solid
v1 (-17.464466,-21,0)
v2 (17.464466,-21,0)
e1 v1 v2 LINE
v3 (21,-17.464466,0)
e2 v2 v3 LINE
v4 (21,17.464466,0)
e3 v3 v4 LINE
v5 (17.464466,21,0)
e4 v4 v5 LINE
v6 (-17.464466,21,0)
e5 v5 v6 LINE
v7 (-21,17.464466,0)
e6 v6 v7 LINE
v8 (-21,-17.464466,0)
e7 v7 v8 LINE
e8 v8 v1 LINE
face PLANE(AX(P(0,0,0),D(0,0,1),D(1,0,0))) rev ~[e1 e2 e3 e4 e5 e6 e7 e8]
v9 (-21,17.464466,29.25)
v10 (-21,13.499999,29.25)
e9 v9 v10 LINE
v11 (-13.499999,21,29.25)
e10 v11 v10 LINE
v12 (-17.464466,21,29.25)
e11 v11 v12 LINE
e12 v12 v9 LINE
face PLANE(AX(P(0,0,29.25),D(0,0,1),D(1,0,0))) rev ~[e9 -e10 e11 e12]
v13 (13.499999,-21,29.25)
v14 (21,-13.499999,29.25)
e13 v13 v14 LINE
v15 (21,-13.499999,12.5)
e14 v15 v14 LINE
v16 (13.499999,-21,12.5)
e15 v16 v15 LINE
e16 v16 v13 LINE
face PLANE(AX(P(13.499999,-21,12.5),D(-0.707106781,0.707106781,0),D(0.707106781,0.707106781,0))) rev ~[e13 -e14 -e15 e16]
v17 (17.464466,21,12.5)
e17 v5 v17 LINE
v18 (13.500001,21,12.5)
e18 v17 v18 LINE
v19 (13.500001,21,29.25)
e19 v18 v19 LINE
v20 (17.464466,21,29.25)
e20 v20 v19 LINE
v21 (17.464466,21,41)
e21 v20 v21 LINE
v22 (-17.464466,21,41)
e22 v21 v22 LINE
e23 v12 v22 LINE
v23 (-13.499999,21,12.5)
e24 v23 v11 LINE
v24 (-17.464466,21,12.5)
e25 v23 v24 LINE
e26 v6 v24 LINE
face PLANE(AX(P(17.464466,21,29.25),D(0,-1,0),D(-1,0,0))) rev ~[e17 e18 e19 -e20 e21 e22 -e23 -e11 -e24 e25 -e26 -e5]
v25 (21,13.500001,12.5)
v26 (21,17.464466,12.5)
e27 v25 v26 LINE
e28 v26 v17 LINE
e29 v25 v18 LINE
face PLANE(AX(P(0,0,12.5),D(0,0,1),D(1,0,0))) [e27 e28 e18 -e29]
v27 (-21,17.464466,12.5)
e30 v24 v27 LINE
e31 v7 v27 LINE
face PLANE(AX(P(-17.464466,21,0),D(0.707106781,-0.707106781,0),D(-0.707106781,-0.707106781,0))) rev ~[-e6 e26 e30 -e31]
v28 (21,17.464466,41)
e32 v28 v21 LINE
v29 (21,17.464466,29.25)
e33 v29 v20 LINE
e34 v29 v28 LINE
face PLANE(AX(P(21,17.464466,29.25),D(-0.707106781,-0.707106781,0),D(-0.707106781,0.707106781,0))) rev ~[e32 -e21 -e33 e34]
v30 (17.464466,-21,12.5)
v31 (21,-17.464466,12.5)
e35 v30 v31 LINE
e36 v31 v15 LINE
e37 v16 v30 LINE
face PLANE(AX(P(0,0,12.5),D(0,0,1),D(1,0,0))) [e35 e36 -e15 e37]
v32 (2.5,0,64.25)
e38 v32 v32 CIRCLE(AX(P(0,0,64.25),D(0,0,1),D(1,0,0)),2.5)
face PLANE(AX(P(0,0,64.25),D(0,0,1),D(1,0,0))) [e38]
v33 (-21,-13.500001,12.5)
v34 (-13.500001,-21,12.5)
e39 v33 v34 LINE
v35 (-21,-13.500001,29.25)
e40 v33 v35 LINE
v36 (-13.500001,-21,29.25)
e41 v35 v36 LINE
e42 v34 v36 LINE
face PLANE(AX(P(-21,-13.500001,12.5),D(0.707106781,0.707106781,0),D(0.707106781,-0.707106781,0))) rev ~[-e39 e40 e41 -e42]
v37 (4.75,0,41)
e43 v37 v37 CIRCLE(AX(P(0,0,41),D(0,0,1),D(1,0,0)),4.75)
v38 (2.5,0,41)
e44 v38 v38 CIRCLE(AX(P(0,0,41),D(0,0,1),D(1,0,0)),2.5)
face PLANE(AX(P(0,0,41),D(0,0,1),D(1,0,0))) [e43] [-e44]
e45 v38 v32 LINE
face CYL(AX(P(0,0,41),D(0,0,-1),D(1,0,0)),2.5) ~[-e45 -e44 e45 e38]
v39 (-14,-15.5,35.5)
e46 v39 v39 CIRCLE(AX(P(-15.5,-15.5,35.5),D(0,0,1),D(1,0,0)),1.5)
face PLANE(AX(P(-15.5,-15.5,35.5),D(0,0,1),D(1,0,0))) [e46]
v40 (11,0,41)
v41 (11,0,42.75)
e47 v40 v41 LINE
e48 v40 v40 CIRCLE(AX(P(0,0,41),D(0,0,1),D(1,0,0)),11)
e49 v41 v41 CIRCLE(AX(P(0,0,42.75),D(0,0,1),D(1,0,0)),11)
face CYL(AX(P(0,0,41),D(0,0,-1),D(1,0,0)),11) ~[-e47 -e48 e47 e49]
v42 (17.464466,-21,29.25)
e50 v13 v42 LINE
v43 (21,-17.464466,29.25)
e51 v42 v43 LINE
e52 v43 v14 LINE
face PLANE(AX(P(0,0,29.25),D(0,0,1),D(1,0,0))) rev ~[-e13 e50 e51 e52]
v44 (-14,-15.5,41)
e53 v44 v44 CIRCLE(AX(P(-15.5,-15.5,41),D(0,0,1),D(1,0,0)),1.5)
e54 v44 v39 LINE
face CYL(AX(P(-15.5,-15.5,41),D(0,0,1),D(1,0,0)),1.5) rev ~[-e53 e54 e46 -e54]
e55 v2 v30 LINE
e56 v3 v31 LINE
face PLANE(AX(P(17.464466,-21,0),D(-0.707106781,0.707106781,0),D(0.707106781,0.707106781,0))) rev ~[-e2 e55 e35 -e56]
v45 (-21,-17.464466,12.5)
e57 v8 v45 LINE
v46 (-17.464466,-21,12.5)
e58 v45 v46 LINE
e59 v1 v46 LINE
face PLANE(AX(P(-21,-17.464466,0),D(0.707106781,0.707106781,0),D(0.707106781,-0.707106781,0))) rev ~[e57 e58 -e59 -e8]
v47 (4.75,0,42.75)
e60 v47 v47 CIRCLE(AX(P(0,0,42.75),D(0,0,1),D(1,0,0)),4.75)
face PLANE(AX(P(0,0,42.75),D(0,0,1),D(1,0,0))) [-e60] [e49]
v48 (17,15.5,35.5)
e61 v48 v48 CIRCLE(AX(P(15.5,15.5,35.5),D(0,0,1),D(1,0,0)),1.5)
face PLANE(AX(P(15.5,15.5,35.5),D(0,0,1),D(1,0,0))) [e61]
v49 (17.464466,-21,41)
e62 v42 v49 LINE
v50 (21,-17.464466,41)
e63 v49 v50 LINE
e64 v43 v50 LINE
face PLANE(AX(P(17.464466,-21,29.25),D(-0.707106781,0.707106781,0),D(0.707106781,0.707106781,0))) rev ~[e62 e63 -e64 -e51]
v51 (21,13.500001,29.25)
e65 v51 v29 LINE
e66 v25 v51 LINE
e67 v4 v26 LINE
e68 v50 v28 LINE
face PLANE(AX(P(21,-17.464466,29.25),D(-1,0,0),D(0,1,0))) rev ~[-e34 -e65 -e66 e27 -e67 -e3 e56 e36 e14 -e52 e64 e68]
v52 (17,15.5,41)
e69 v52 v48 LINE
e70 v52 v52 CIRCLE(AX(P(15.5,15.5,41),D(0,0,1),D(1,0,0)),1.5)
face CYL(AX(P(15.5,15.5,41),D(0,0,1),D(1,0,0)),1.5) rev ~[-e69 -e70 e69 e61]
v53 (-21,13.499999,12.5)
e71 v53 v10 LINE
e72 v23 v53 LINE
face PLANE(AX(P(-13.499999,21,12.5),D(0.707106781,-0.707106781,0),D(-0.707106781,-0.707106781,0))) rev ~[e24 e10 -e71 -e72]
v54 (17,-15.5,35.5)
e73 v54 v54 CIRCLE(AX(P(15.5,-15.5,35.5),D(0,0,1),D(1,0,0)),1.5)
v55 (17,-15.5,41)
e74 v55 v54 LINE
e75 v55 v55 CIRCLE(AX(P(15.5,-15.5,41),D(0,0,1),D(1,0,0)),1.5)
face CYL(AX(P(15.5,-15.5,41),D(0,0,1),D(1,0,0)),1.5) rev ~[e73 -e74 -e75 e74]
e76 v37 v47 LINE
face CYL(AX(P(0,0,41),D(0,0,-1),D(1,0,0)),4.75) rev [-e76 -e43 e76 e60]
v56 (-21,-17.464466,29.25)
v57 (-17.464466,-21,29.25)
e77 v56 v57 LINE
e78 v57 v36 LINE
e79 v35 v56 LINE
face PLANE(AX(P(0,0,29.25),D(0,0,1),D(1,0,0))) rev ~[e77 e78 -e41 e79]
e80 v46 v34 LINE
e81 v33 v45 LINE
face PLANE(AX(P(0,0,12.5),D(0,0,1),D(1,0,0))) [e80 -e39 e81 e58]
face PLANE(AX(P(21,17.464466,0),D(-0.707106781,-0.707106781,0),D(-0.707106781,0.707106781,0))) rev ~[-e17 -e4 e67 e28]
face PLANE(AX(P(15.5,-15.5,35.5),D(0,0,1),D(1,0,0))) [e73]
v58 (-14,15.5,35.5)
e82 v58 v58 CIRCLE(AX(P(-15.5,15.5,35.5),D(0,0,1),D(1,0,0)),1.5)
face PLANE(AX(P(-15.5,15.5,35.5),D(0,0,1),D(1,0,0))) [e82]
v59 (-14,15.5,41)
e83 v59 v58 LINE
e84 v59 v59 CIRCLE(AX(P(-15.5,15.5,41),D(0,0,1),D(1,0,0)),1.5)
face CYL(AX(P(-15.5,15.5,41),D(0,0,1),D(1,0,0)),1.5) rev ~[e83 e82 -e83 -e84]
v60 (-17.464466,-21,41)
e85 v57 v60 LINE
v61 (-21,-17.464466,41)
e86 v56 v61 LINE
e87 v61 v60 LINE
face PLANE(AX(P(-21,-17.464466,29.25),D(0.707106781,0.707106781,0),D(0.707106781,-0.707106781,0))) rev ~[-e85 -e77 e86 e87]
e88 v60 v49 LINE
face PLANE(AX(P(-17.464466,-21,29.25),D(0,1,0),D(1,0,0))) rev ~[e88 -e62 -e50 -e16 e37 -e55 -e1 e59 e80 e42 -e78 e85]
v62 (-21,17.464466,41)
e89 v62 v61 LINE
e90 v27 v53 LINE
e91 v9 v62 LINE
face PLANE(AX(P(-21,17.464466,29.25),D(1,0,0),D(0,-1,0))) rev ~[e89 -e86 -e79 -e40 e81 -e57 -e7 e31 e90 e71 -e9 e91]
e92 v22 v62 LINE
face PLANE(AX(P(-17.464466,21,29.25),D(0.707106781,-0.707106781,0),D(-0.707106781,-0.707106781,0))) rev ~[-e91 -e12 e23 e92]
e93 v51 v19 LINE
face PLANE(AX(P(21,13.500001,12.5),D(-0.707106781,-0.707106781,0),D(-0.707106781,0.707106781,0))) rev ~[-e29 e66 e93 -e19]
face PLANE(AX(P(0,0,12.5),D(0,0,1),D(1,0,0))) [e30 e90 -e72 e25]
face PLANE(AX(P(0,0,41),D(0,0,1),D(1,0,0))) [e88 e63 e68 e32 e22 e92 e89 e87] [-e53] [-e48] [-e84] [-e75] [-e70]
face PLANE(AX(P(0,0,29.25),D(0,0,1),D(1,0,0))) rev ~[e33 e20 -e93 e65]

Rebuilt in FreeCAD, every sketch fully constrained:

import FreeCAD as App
import Part
import Sketcher
Q = App.Units.Quantity


def add_polygon(sketch, points):
    """Adds a closed chain of lines whose ends are joined by coincident constraints."""
    first, n = sketch.GeometryCount, len(points)
    for a, b in zip(points, points[1:] + points[:1]):
        sketch.addGeometry(Part.LineSegment(App.Vector(*a, 0), App.Vector(*b, 0)), False)
    for i in range(n):
        sketch.addConstraint(Sketcher.Constraint("Coincident", first + i, 2, first + (i + 1) % n, 1))

doc = App.newDocument("Part")
body = doc.addObject("PartDesign::Body", "Body")

sketch1 = doc.addObject("Sketcher::SketchObject", "Sketch")
body.addObject(sketch1)
sketch1.AttachmentSupport = (doc.XY_Plane, [""])
sketch1.MapMode = "FlatFace"
add_polygon(sketch1, [(17, 21), (-17, 21), (-21, 17), (-21, -17), (-17, -21), (17, -21), (21, -17), (21, 17)])
sketch1.addConstraint([
    Sketcher.Constraint("Horizontal", 0),
    Sketcher.Constraint("Vertical", 2),
    Sketcher.Constraint("Horizontal", 4),
    Sketcher.Constraint("Vertical", 6),
    Sketcher.Constraint("Symmetric", 0, 2, 4, 2, -1, 1),
    Sketcher.Constraint("Symmetric", 1, 2, 5, 2, -1, 1),
    Sketcher.Constraint("Perpendicular", 1, 3),
    Sketcher.Constraint("Perpendicular", 5, 7),
    Sketcher.Constraint("Horizontal", 2, 2, 5, 2),
    Sketcher.Constraint("Horizontal", 1, 2, 6, 2),
    Sketcher.Constraint("Vertical", 0, 2, 3, 2),
    Sketcher.Constraint("Equal", 4, 2),
    Sketcher.Constraint("Distance", 1, 5.0),
    Sketcher.Constraint("DistanceY", -1, 1, 0, 2, 21.0),
])
pad1 = doc.addObject("PartDesign::Pad", "Pad")
body.addObject(pad1)
pad1.Profile = sketch1
pad1.Length = 12.5

sketch2 = doc.addObject("Sketcher::SketchObject", "Sketch001")
body.addObject(sketch2)
sketch2.AttachmentSupport = (doc.XY_Plane, [""])
sketch2.MapMode = "FlatFace"
sketch2.AttachmentOffset = App.Placement(App.Vector(0, 0, 12.5), App.Rotation())
add_polygon(sketch2, [(14, 21), (-13, 21), (-21, 13), (-21, -14), (-14, -21), (13, -21), (21, -13), (21, 14)])
sketch2.addConstraint([
    Sketcher.Constraint("Horizontal", 0),
    Sketcher.Constraint("Vertical", 2),
    Sketcher.Constraint("Horizontal", 4),
    Sketcher.Constraint("Vertical", 6),
    Sketcher.Constraint("Symmetric", 0, 2, 4, 2, -1, 1),
    Sketcher.Constraint("Symmetric", 1, 2, 5, 2, -1, 1),
    Sketcher.Constraint("Perpendicular", 1, 3),
    Sketcher.Constraint("Perpendicular", 5, 7),
    Sketcher.Constraint("Equal", 0, 4),
    Sketcher.Constraint("Equal", 4, 2),
    Sketcher.Constraint("DistanceX", 0, 2, 0, 1, 27.0),
    Sketcher.Constraint("Angle", 1, Q("-135 deg")),
    Sketcher.Constraint("DistanceY", -1, 1, 0, 2, 21.0),
    Sketcher.Constraint("DistanceX", 0, 2, -1, 1, 13.499999),
])
pad2 = doc.addObject("PartDesign::Pad", "Pad001")
body.addObject(pad2)
pad2.Profile = sketch2
pad2.Length = 16.75

sketch3 = doc.addObject("Sketcher::SketchObject", "Sketch002")
body.addObject(sketch3)
sketch3.AttachmentSupport = (doc.XY_Plane, [""])
sketch3.MapMode = "FlatFace"
sketch3.AttachmentOffset = App.Placement(App.Vector(0, 0, 29.25), App.Rotation())
add_polygon(sketch3, [(17, 21), (-17, 21), (-21, 17), (-21, -17), (-17, -21), (17, -21), (21, -17), (21, 17)])
sketch3.addConstraint([
    Sketcher.Constraint("Horizontal", 0),
    Sketcher.Constraint("Vertical", 2),
    Sketcher.Constraint("Horizontal", 4),
    Sketcher.Constraint("Vertical", 6),
    Sketcher.Constraint("Symmetric", 0, 2, 4, 2, -1, 1),
    Sketcher.Constraint("Symmetric", 1, 2, 5, 2, -1, 1),
    Sketcher.Constraint("Perpendicular", 1, 3),
    Sketcher.Constraint("Perpendicular", 5, 7),
    Sketcher.Constraint("Horizontal", 2, 2, 5, 2),
    Sketcher.Constraint("Horizontal", 1, 2, 6, 2),
    Sketcher.Constraint("Vertical", 0, 2, 3, 2),
    Sketcher.Constraint("Equal", 4, 2),
    Sketcher.Constraint("Distance", 1, 5.0),
    Sketcher.Constraint("DistanceY", -1, 1, 0, 2, 21.0),
])
pad3 = doc.addObject("PartDesign::Pad", "Pad002")
body.addObject(pad3)
pad3.Profile = sketch3
pad3.Length = 11.75

sketch4 = doc.addObject("Sketcher::SketchObject", "Sketch003")
body.addObject(sketch4)
sketch4.AttachmentSupport = (doc.XY_Plane, [""])
sketch4.MapMode = "FlatFace"
sketch4.AttachmentOffset = App.Placement(App.Vector(0, 0, 41), App.Rotation())
sketch4.addGeometry([
    Part.Circle(App.Vector(-15.5, 15.5, 0), App.Vector(0, 0, 1), 1.5),
    Part.Circle(App.Vector(15.5, 15.5, 0), App.Vector(0, 0, 1), 1.5),
    Part.Circle(App.Vector(15.5, -15.5, 0), App.Vector(0, 0, 1), 1.5),
    Part.Circle(App.Vector(-15.5, -15.5, 0), App.Vector(0, 0, 1), 1.5),
], False)
sketch4.addConstraint([
    Sketcher.Constraint("Equal", 0, 1),
    Sketcher.Constraint("Equal", 1, 2),
    Sketcher.Constraint("Equal", 2, 3),
    Sketcher.Constraint("Symmetric", 0, 3, 2, 3, -1, 1),
    Sketcher.Constraint("Symmetric", 1, 3, 3, 3, -1, 1),
    Sketcher.Constraint("Symmetric", 0, 3, 1, 3, -2),
    Sketcher.Constraint("Diameter", 0, 3.0),
    Sketcher.Constraint("DistanceX", 0, 3, 1, 3, 31.0),
    Sketcher.Constraint("DistanceY", 2, 3, 1, 3, 31.0),
])
pocket1 = doc.addObject("PartDesign::Pocket", "Pocket")
body.addObject(pocket1)
pocket1.Profile = sketch4
pocket1.Length = 5.5

sketch5 = doc.addObject("Sketcher::SketchObject", "Sketch004")
body.addObject(sketch5)
sketch5.AttachmentSupport = (doc.XY_Plane, [""])
sketch5.MapMode = "FlatFace"
sketch5.AttachmentOffset = App.Placement(App.Vector(0, 0, 41), App.Rotation())
sketch5.addGeometry([
    Part.Circle(App.Vector(0, 0, 0), App.Vector(0, 0, 1), 11),
    Part.Circle(App.Vector(0, 0, 0), App.Vector(0, 0, 1), 4.8),
], False)
sketch5.addConstraint([
    Sketcher.Constraint("Coincident", 0, 3, -1, 1),
    Sketcher.Constraint("Coincident", 1, 3, -1, 1),
    Sketcher.Constraint("Diameter", 0, 22.0),
    Sketcher.Constraint("Diameter", 1, 9.5),
])
pad4 = doc.addObject("PartDesign::Pad", "Pad003")
body.addObject(pad4)
pad4.Profile = sketch5
pad4.Length = 1.75

sketch6 = doc.addObject("Sketcher::SketchObject", "Sketch005")
body.addObject(sketch6)
sketch6.AttachmentSupport = (doc.XY_Plane, [""])
sketch6.MapMode = "FlatFace"
sketch6.AttachmentOffset = App.Placement(App.Vector(0, 0, 41), App.Rotation())
sketch6.addGeometry(Part.Circle(App.Vector(0, 0, 0), App.Vector(0, 0, 1), 2.5), False)
sketch6.addConstraint([
    Sketcher.Constraint("Coincident", 0, 3, -1, 1),
    Sketcher.Constraint("Diameter", 0, 5.0),
])
pad5 = doc.addObject("PartDesign::Pad", "Pad004")
body.addObject(pad5)
pad5.Profile = sketch6
pad5.Length = 23.25

doc.recompute()
